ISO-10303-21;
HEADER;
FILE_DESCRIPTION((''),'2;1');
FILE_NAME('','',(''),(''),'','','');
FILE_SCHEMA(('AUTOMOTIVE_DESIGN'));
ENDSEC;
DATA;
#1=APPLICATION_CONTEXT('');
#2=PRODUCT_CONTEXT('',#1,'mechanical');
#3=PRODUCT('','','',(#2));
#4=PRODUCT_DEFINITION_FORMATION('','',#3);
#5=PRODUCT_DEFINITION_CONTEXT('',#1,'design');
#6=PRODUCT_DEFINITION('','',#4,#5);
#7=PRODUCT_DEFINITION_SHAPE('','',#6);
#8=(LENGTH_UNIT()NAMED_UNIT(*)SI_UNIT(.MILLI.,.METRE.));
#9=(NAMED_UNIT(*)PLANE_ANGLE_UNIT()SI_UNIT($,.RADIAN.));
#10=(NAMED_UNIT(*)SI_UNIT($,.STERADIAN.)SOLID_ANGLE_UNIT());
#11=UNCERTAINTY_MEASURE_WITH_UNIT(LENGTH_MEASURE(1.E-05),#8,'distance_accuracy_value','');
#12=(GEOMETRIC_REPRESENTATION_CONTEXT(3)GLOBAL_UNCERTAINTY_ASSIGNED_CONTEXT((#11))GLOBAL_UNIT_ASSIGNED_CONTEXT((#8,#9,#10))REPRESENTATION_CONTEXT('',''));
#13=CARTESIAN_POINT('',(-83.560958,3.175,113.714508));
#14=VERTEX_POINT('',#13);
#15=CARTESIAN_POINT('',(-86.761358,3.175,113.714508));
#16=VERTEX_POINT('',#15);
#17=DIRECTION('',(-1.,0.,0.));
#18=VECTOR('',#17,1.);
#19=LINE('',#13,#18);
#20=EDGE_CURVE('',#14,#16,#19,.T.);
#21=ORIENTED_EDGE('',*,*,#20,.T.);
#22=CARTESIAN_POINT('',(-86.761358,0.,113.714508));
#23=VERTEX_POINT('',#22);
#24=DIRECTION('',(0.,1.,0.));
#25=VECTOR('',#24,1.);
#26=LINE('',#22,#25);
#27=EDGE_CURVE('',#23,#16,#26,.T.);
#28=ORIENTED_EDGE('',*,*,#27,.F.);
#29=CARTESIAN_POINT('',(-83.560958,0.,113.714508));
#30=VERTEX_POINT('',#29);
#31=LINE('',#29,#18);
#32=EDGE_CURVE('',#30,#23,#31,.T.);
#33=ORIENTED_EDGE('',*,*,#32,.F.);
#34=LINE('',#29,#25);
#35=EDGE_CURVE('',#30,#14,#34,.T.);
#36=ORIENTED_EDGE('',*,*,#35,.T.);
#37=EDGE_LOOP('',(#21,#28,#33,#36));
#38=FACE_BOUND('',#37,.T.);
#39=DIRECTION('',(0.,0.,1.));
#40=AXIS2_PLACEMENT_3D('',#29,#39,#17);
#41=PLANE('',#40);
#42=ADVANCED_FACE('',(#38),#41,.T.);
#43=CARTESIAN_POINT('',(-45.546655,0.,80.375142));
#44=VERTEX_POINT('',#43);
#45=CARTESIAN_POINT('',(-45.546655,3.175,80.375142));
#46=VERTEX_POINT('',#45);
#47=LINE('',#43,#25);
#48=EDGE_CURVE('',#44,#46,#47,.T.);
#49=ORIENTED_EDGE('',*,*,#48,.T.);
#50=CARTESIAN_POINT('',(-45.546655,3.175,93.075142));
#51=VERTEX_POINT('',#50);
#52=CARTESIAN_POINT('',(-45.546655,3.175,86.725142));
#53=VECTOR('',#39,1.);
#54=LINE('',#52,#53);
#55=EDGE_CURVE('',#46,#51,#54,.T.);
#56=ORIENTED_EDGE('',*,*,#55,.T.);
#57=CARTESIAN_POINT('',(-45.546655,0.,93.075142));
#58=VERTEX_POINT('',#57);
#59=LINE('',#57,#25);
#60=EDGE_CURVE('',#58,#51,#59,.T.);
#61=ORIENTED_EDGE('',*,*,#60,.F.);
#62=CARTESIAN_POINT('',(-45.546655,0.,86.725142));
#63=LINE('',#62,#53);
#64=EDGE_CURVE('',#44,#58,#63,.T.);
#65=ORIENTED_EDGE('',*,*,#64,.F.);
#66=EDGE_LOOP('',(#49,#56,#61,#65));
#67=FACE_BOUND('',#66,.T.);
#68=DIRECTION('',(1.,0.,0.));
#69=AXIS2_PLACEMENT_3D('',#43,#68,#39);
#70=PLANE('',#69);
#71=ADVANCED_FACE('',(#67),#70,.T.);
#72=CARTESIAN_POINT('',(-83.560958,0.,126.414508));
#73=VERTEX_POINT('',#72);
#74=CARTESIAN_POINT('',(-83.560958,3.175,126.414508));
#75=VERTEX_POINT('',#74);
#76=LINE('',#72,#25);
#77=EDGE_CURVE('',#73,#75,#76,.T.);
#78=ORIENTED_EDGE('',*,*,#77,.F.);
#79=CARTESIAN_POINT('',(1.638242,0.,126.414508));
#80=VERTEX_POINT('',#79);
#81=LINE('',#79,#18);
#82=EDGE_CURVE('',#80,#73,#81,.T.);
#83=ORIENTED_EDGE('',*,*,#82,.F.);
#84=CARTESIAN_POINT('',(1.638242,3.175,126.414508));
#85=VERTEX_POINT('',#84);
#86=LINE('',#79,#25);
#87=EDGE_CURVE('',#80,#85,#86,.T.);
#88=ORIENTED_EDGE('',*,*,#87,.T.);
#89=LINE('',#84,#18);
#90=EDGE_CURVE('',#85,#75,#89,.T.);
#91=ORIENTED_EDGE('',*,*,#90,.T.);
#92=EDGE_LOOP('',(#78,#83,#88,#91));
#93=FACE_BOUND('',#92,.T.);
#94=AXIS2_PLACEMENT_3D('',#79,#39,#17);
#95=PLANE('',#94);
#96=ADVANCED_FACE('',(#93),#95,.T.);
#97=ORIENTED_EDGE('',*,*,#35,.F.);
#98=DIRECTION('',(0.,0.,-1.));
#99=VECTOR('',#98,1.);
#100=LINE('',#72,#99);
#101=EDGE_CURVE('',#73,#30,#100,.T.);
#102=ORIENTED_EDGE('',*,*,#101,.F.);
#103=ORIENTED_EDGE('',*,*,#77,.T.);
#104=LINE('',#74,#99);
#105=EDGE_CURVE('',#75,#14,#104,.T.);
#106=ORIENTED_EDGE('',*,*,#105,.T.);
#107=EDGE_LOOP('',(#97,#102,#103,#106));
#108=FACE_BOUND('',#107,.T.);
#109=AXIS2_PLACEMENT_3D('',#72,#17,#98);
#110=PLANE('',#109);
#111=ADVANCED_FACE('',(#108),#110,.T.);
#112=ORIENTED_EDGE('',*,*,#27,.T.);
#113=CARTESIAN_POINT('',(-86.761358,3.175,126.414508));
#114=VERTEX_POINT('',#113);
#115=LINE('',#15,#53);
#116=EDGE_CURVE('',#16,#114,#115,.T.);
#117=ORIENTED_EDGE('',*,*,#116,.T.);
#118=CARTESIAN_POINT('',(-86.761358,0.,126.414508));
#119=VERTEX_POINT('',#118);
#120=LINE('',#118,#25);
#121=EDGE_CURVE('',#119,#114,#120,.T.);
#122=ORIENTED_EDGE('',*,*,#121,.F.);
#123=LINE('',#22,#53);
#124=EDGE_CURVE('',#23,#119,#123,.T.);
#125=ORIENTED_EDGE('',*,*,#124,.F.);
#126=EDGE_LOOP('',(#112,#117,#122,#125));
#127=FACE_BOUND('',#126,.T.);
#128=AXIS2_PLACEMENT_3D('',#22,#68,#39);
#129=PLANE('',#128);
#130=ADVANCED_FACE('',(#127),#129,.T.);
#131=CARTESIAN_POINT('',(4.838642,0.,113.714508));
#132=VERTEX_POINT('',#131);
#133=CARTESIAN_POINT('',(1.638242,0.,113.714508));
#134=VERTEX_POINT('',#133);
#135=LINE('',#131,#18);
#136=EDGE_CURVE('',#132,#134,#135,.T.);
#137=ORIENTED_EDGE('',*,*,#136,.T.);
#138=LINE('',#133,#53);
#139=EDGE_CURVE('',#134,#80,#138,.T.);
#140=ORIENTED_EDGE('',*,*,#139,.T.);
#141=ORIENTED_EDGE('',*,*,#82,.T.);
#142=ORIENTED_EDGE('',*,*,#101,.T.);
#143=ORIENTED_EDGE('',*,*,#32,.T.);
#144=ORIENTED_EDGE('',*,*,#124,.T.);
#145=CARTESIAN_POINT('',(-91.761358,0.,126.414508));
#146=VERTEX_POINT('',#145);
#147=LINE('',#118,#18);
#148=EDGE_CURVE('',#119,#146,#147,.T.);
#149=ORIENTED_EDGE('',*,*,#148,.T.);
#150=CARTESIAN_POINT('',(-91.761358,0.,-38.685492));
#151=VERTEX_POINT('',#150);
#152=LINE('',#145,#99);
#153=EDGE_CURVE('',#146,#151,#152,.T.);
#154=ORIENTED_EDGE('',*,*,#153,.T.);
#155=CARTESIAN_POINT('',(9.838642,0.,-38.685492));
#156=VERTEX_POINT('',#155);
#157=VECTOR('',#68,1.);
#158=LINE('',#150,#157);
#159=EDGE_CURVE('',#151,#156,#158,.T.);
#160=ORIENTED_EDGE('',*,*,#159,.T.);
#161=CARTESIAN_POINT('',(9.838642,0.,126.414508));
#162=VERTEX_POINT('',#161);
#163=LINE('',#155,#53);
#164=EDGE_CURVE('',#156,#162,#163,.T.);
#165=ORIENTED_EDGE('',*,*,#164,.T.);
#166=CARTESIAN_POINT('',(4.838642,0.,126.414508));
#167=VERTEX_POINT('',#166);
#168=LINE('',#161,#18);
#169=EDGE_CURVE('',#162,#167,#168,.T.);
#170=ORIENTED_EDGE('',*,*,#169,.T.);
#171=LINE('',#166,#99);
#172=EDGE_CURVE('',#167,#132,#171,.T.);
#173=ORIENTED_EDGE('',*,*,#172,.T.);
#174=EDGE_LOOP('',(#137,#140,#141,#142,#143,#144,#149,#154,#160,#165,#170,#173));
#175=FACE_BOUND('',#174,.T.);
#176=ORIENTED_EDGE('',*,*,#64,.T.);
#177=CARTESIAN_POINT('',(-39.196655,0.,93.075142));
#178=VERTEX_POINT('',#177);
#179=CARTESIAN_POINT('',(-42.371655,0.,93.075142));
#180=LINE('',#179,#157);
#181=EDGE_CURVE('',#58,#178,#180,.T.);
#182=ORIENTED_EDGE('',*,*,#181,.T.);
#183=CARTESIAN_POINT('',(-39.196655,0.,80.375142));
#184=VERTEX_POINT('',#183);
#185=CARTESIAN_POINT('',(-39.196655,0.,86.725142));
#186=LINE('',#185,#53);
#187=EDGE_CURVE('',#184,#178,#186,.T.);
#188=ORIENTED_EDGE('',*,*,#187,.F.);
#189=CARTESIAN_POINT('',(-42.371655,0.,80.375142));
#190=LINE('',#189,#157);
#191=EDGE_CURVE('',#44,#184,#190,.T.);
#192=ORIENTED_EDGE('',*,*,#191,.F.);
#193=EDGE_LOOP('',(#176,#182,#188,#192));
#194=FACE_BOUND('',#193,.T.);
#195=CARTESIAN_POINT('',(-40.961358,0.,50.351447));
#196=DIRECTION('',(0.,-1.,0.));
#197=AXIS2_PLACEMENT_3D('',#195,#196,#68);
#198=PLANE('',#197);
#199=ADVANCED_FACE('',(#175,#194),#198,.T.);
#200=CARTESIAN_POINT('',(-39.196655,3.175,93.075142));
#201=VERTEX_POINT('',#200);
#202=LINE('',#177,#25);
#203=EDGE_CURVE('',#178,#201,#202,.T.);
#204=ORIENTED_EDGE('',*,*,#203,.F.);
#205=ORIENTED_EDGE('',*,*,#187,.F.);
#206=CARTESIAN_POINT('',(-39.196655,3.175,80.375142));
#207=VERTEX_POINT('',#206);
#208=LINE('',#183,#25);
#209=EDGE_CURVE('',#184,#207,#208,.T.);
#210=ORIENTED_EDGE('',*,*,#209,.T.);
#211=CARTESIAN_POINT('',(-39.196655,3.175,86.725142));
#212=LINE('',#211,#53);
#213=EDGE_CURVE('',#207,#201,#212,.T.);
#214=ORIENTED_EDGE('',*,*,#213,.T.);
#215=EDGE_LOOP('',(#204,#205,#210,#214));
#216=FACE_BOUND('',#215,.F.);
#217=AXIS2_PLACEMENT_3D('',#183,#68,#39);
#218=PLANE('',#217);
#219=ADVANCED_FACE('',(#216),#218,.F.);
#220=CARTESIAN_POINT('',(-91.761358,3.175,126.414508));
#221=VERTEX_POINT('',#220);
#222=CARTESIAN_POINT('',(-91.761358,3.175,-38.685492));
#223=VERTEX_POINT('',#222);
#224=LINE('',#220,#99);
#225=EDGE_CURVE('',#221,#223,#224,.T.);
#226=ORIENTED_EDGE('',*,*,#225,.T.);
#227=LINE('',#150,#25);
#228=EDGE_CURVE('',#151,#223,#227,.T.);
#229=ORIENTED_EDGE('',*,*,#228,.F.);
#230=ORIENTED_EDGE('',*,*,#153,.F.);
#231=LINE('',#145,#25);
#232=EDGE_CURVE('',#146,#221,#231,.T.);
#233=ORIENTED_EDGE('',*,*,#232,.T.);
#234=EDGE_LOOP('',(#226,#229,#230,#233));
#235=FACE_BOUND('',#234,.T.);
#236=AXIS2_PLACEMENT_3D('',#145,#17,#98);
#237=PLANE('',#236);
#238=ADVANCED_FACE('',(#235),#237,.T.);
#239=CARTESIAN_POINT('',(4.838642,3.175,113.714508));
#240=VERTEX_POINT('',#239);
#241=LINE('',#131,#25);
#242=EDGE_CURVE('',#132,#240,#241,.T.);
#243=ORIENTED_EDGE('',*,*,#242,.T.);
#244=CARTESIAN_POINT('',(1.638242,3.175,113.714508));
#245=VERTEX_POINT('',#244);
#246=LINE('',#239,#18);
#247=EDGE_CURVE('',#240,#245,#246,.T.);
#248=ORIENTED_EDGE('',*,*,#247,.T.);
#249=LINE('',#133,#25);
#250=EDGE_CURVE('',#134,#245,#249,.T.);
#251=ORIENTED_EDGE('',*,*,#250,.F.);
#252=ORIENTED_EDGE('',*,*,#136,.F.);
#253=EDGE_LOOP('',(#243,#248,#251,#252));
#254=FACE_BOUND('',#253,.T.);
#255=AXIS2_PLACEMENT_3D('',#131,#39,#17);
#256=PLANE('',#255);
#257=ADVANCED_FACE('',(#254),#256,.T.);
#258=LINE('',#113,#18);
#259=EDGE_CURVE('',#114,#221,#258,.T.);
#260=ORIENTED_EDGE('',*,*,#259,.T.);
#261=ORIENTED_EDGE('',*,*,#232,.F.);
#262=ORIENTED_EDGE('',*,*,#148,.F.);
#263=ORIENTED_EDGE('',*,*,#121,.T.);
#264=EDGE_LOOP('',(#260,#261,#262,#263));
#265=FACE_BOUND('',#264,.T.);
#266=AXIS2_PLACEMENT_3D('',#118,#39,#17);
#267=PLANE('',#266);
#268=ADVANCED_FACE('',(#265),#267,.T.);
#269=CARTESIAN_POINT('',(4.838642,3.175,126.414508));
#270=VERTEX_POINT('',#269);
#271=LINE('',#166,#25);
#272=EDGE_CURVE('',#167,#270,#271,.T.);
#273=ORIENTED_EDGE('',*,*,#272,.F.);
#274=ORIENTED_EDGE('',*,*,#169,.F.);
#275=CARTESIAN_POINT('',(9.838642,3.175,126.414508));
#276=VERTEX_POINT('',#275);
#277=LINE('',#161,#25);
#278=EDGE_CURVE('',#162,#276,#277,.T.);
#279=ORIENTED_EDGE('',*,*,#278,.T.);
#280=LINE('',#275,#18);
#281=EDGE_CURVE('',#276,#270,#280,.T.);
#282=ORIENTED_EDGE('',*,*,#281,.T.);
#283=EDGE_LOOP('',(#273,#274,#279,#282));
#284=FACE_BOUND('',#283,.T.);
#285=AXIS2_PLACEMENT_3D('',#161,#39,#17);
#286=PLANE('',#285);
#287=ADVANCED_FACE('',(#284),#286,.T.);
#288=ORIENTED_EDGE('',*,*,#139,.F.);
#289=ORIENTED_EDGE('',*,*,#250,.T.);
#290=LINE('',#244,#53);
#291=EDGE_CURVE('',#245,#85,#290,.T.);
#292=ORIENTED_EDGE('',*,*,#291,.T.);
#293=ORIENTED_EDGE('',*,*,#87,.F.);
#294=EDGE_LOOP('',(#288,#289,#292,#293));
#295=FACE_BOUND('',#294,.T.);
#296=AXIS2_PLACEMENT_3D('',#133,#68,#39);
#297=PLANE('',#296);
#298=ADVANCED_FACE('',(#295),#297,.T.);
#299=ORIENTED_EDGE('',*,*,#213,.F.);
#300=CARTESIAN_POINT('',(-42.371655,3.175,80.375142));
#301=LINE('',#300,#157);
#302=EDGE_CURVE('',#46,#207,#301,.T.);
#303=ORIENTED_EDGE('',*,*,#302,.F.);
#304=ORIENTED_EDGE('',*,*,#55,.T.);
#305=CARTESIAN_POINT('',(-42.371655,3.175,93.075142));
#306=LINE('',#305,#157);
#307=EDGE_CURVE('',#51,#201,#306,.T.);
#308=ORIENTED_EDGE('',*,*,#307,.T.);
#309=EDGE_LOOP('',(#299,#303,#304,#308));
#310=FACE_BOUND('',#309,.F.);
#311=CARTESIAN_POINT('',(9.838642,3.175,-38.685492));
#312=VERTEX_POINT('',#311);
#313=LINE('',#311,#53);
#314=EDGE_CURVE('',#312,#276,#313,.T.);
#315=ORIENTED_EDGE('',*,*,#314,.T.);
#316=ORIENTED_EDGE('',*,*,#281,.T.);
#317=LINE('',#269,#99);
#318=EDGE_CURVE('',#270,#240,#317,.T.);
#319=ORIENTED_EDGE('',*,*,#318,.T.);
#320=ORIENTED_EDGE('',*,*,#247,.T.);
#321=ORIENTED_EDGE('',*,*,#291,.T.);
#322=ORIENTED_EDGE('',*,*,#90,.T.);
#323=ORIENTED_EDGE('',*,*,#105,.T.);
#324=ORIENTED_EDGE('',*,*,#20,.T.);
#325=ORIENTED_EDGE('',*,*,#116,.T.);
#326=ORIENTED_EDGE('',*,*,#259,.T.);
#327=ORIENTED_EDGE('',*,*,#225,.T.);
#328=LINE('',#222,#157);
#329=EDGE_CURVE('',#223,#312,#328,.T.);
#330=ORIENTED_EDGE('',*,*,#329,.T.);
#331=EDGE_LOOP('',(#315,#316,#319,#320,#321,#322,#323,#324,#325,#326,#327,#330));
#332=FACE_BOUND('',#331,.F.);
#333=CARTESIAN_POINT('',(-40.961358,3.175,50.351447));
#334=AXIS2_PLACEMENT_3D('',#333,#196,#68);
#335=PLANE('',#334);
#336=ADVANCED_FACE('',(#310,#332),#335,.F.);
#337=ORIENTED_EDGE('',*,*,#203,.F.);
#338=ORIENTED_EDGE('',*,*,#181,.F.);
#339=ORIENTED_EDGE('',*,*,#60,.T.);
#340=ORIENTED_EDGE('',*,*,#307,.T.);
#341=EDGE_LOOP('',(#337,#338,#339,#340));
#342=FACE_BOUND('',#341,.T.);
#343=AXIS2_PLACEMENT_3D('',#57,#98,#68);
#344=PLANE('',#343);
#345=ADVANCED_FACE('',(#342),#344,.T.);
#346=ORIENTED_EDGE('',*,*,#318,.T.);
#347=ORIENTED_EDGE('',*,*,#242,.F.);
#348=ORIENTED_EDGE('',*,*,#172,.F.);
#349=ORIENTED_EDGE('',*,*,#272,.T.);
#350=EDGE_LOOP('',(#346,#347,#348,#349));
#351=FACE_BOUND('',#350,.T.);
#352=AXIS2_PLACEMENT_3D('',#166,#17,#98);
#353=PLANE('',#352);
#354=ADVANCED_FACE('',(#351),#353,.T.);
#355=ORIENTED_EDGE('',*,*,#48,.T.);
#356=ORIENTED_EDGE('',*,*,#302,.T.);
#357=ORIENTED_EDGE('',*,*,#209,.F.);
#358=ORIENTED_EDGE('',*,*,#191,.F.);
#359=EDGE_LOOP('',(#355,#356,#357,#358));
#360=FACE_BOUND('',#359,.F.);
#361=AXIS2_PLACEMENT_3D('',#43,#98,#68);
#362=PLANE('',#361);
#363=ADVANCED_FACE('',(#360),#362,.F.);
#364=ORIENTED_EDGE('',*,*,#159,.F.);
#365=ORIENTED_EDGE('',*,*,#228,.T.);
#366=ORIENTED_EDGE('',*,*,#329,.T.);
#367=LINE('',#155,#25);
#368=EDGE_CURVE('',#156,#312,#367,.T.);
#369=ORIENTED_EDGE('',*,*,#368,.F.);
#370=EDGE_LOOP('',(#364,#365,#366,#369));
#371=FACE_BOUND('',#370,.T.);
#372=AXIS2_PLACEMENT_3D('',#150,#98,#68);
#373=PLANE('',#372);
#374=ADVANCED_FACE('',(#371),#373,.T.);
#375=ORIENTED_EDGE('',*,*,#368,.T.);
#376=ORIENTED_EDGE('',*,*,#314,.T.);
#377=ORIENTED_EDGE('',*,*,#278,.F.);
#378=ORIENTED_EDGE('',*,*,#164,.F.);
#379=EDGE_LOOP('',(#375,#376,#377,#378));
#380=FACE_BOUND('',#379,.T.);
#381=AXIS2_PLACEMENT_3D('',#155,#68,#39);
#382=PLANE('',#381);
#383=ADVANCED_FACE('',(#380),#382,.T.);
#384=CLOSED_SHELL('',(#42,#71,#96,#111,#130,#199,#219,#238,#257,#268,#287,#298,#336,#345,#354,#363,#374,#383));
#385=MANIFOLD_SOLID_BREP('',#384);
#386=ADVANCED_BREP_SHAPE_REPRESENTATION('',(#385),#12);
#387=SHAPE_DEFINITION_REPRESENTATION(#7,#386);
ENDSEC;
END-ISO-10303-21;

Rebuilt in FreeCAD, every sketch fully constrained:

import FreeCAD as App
import Part
import Sketcher
Q = App.Units.Quantity


def add_polygon(sketch, points):
    """Adds a closed chain of lines whose ends are joined by coincident constraints."""
    first, n = sketch.GeometryCount, len(points)
    for a, b in zip(points, points[1:] + points[:1]):
        sketch.addGeometry(Part.LineSegment(App.Vector(*a, 0), App.Vector(*b, 0)), False)
    for i in range(n):
        sketch.addConstraint(Sketcher.Constraint("Coincident", first + i, 2, first + (i + 1) % n, 1))

doc = App.newDocument("Part")
body = doc.addObject("PartDesign::Body", "Body")

# Sketch on XZ plane
sketch1 = doc.addObject("Sketcher::SketchObject", "Sketch")
body.addObject(sketch1)
sketch1.AttachmentSupport = (doc.XZ_Plane, [""])
sketch1.MapMode = "FlatFace"
add_polygon(sketch1, [(-86.761358, 126.414508), (-91.761358, 126.414508), (-91.761358, -38.685492), (9.838642, -38.685492), (9.838642, 126.414508), (4.838642, 126.414508), (4.838642, 113.714508), (1.638242, 113.714508), (1.638242, 126.414508), (-83.560958, 126.414508), (-83.560958, 113.714508), (-86.761358, 113.714508)])  # lines 0-11
add_polygon(sketch1, [(-39.196655, 80.375142), (-45.546655, 80.375142), (-45.546655, 93.075142), (-39.196655, 93.075142)])  # lines 12-15
sketch1.addConstraint([
    Sketcher.Constraint("Horizontal", 0),
    Sketcher.Constraint("Vertical", 1),
    Sketcher.Constraint("Horizontal", 2),
    Sketcher.Constraint("Vertical", 3),
    Sketcher.Constraint("Horizontal", 4),
    Sketcher.Constraint("Vertical", 5),
    Sketcher.Constraint("Horizontal", 6),
    Sketcher.Constraint("Vertical", 7),
    Sketcher.Constraint("Horizontal", 8),
    Sketcher.Constraint("Vertical", 9),
    Sketcher.Constraint("Horizontal", 10),
    Sketcher.Constraint("Vertical", 11),
    Sketcher.Constraint("Horizontal", 12),
    Sketcher.Constraint("Vertical", 13),
    Sketcher.Constraint("Horizontal", 14),
    Sketcher.Constraint("Vertical", 15),
    Sketcher.Constraint("Horizontal", 0, 2, 3, 2),
    Sketcher.Constraint("Horizontal", 4, 2, 7, 2),
    Sketcher.Constraint("Horizontal", 6, 2, 9, 2),
    Sketcher.Constraint("Equal", 0, 4),
    Sketcher.Constraint("Equal", 6, 10),
    Sketcher.Constraint("Equal", 11, 13),
    Sketcher.Constraint("DistanceX", 2, 1, 2, 2, Q("4 in")),
    Sketcher.Constraint("DistanceY", 1, 2, 1, 1, Q("6.5 in")),
    Sketcher.Constraint("DistanceY", 5, 2, 5, 1, Q("0.5 in")),
    Sketcher.Constraint("DistanceX", 12, 2, 12, 1, Q("0.25 in")),
    Sketcher.Constraint("DistanceX", 6, 2, 6, 1, Q("0.126 in")),
    Sketcher.Constraint("DistanceX", 0, 2, 0, 1, Q("5 mm")),
    Sketcher.Constraint("DistanceX", 0, 2, -1, 1, Q("91.761358 mm")),
    Sketcher.Constraint("DistanceY", -1, 1, 12, 2, Q("80.375142 mm")),
    Sketcher.Constraint("DistanceY", -1, 1, 0, 2, Q("126.414508 mm")),
    Sketcher.Constraint("DistanceX", 12, 2, -1, 1, Q("45.546655 mm")),
])
pad1 = doc.addObject("PartDesign::Pad", "Pad")
body.addObject(pad1)
pad1.Profile = sketch1
pad1.Length = Q("0.125 in")
pad1.Reversed = True

doc.recompute()
